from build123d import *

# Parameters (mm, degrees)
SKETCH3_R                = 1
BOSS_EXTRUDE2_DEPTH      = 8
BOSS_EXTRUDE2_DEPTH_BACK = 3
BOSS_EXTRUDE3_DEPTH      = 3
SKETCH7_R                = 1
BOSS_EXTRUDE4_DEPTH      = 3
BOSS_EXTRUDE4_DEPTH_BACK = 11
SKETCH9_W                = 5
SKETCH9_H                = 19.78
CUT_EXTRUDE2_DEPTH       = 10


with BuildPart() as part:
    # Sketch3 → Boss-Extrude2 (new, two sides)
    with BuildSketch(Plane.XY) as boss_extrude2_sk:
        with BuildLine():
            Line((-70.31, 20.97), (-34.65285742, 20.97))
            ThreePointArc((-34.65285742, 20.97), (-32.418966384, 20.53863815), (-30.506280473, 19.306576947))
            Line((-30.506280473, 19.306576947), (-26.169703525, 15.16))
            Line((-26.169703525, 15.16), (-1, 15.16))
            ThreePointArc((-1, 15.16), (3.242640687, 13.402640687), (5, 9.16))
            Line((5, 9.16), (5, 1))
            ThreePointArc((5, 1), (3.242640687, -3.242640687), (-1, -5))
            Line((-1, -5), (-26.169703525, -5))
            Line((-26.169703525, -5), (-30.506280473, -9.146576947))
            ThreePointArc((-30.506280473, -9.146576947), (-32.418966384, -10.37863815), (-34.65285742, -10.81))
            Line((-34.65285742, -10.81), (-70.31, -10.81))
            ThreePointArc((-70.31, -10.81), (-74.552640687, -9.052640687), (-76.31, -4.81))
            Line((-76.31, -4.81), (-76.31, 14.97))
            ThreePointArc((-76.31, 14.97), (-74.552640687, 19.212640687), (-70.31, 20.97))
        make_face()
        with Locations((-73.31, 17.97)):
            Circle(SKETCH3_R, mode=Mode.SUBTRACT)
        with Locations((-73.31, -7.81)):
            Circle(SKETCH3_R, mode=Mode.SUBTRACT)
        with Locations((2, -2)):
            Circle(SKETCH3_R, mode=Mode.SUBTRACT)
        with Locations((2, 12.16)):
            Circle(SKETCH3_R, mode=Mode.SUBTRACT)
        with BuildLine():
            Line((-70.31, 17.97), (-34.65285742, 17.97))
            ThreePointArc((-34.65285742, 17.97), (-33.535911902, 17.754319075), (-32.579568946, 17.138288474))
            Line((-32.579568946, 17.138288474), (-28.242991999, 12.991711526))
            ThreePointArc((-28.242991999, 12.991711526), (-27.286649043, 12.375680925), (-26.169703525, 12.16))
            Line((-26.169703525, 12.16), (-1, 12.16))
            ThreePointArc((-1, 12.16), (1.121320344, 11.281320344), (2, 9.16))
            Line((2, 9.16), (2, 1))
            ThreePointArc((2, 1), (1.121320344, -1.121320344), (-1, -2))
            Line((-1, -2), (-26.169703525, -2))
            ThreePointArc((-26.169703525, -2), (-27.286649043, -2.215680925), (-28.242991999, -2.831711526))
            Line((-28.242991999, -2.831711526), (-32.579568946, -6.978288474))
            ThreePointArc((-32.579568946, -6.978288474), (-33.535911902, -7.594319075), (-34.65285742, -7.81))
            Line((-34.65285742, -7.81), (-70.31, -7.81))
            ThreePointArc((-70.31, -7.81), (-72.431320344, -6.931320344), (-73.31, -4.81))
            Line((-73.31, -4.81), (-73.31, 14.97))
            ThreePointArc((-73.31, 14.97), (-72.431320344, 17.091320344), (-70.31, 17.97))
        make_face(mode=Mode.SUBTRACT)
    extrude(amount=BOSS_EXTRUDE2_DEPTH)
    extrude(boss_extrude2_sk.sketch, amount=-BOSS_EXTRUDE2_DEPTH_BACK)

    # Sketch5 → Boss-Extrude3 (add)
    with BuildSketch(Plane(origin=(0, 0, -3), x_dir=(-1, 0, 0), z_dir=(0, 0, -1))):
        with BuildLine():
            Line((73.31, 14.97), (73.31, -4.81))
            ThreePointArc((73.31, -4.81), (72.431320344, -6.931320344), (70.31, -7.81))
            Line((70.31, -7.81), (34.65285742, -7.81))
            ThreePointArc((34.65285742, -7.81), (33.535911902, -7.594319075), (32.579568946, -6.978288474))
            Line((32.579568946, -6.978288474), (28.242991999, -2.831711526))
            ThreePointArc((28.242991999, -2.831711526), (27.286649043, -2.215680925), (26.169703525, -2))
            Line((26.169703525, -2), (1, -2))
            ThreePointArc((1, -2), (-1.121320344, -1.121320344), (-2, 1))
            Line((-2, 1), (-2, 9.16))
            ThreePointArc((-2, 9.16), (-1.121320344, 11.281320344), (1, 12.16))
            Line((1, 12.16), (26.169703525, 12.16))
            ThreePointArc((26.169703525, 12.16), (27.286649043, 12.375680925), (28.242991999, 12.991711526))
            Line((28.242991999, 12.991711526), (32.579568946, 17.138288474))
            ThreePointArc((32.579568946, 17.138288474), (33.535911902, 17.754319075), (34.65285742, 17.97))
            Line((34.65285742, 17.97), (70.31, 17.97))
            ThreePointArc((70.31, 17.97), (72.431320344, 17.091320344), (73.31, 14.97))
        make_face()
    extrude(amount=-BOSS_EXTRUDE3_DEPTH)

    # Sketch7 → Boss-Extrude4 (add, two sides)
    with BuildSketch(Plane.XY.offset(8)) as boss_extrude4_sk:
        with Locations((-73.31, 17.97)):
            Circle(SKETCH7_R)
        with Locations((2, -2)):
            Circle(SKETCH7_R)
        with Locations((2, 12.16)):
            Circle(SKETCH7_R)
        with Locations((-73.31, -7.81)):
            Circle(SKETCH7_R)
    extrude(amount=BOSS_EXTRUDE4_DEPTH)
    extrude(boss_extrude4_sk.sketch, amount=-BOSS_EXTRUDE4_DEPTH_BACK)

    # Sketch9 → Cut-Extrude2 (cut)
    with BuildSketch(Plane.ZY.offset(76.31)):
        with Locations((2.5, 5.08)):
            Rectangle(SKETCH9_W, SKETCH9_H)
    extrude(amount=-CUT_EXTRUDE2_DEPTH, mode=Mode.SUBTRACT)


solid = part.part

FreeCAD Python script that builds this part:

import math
import FreeCAD as App
import Part
import Sketcher
from FreeCAD import Vector


def add_polygon(sketch, points):
    """Adds a closed chain of lines whose ends are joined by coincident constraints."""
    first, n = sketch.GeometryCount, len(points)
    for a, b in zip(points, points[1:] + points[:1]):
        sketch.addGeometry(Part.LineSegment(App.Vector(*a, 0), App.Vector(*b, 0)), False)
    for i in range(n):
        sketch.addConstraint(Sketcher.Constraint("Coincident", first + i, 2, first + (i + 1) % n, 1))

doc = App.newDocument("Part")
params = doc.addObject("Spreadsheet::Sheet", "Params")
for row, (alias, value) in enumerate([
    ("sketch1_diameter", "2 mm"),
    ("sketch1_radius", "6 mm"),
    ("sketch1_length", "6 mm"),
    ("sketch1_height", "19.78 mm"),
    ("sketch1_height2", "8.16 mm"),
    ("pad1_length", "8 mm"),
    ("pad1_length2", "3 mm"),
    ("sketch2_radius", "3 mm"),
    ("sketch2_length", "6 mm"),
    ("sketch2_height", "19.78 mm"),
    ("sketch2_height2", "8.16 mm"),
    ("pad2_length", "3 mm"),
    ("sketch3_diameter", "2 mm"),
    ("pad3_length", "3 mm"),
    ("pad3_length2", "11 mm"),
    ("sketch4_height", "5 mm"),
    ("sketch4_width", "19.78 mm"),
    ("pocket1_length", "10 mm"),
], start=1):
    params.set(f"A{row}", alias)
    params.set(f"B{row}", "=" + value)
    params.setAlias(f"B{row}", alias)

body = doc.addObject("PartDesign::Body", "Body")

# Sketch on XY plane
sketch1 = body.newObject("Sketcher::SketchObject", "Sketch")
sketch1.AttachmentSupport = (doc.getObject("XY_Plane"), [""])
sketch1.MapMode = "FlatFace"
sketch1.addGeometry(Part.LineSegment(Vector(-34.7, 21, 0), Vector(-70.3, 21, 0)), False)
sketch1.addGeometry(Part.ArcOfCircle(Part.Circle(Vector(-70.3, 15, 0), Vector(0, 0, 1), 6), math.radians(90), math.radians(180)), False)
sketch1.addGeometry(Part.LineSegment(Vector(-76.3, 15, 0), Vector(-76.3, -4.8, 0)), False)
sketch1.addGeometry(Part.ArcOfCircle(Part.Circle(Vector(-70.3, -4.8, 0), Vector(0, 0, 1), 6), math.radians(180), math.radians(270)), False)
sketch1.addGeometry(Part.LineSegment(Vector(-70.3, -10.8, 0), Vector(-34.7, -10.8, 0)), False)
sketch1.addGeometry(Part.ArcOfCircle(Part.Circle(Vector(-34.7, -4.8, 0), Vector(0, 0, 1), 6), math.radians(-90), math.radians(-46)), False)
sketch1.addGeometry(Part.LineSegment(Vector(-30.5, -9.1, 0), Vector(-26.2, -5, 0)), False)
sketch1.addGeometry(Part.LineSegment(Vector(-26.2, -5, 0), Vector(-1, -5, 0)), False)
sketch1.addGeometry(Part.ArcOfCircle(Part.Circle(Vector(-1, 1, 0), Vector(0, 0, 1), 6), math.radians(-90), math.radians(0)), False)
sketch1.addGeometry(Part.LineSegment(Vector(5, 1, 0), Vector(5, 9.2, 0)), False)
sketch1.addGeometry(Part.ArcOfCircle(Part.Circle(Vector(-1, 9.2, 0), Vector(0, 0, 1), 6), math.radians(0), math.radians(90)), False)
sketch1.addGeometry(Part.LineSegment(Vector(-1, 15.2, 0), Vector(-26.2, 15.2, 0)), False)
sketch1.addGeometry(Part.LineSegment(Vector(-26.2, 15.2, 0), Vector(-30.5, 19.3, 0)), False)
sketch1.addGeometry(Part.ArcOfCircle(Part.Circle(Vector(-34.7, 15, 0), Vector(0, 0, 1), 6), math.radians(46), math.radians(90)), False)
sketch1.addGeometry(Part.Circle(Vector(2, -2, 0), Vector(0, 0, 1), 1), False)
sketch1.addGeometry(Part.Circle(Vector(-73.3, -7.8, 0), Vector(0, 0, 1), 1), False)
sketch1.addGeometry(Part.Circle(Vector(2, 12.2, 0), Vector(0, 0, 1), 1), False)
sketch1.addGeometry(Part.LineSegment(Vector(-70.3, 18, 0), Vector(-34.7, 18, 0)), False)
sketch1.addGeometry(Part.ArcOfCircle(Part.Circle(Vector(-34.7, 15, 0), Vector(0, 0, 1), 3), math.radians(46), math.radians(90)), False)
sketch1.addGeometry(Part.LineSegment(Vector(-32.6, 17.1, 0), Vector(-28.2, 13, 0)), False)
sketch1.addGeometry(Part.ArcOfCircle(Part.Circle(Vector(-26.2, 15.2, 0), Vector(0, 0, 1), 3), math.radians(-134), math.radians(-90)), False)
sketch1.addGeometry(Part.LineSegment(Vector(-26.2, 12.2, 0), Vector(-1, 12.2, 0)), False)
sketch1.addGeometry(Part.ArcOfCircle(Part.Circle(Vector(-1, 9.2, 0), Vector(0, 0, 1), 3), math.radians(0), math.radians(90)), False)
sketch1.addGeometry(Part.LineSegment(Vector(2, 9.2, 0), Vector(2, 1, 0)), False)
sketch1.addGeometry(Part.ArcOfCircle(Part.Circle(Vector(-1, 1, 0), Vector(0, 0, 1), 3), math.radians(-90), math.radians(0)), False)
sketch1.addGeometry(Part.LineSegment(Vector(-1, -2, 0), Vector(-26.2, -2, 0)), False)
sketch1.addGeometry(Part.ArcOfCircle(Part.Circle(Vector(-26.2, -5, 0), Vector(0, 0, 1), 3), math.radians(90), math.radians(134)), False)
sketch1.addGeometry(Part.LineSegment(Vector(-28.2, -2.8, 0), Vector(-32.6, -7, 0)), False)
sketch1.addGeometry(Part.ArcOfCircle(Part.Circle(Vector(-34.7, -4.8, 0), Vector(0, 0, 1), 3), math.radians(-90), math.radians(-46)), False)
sketch1.addGeometry(Part.LineSegment(Vector(-34.7, -7.8, 0), Vector(-70.3, -7.8, 0)), False)
sketch1.addGeometry(Part.ArcOfCircle(Part.Circle(Vector(-70.3, -4.8, 0), Vector(0, 0, 1), 3), math.radians(180), math.radians(270)), False)
sketch1.addGeometry(Part.LineSegment(Vector(-73.3, -4.8, 0), Vector(-73.3, 15, 0)), False)
sketch1.addGeometry(Part.ArcOfCircle(Part.Circle(Vector(-70.3, 15, 0), Vector(0, 0, 1), 3), math.radians(90), math.radians(180)), False)
sketch1.addGeometry(Part.Circle(Vector(-73.3, 18, 0), Vector(0, 0, 1), 1), False)
sketch1.addConstraint(Sketcher.Constraint("Tangent", 0, 2, 1, 1))
sketch1.addConstraint(Sketcher.Constraint("Tangent", 1, 2, 2, 1))
sketch1.addConstraint(Sketcher.Constraint("Tangent", 2, 2, 3, 1))
sketch1.addConstraint(Sketcher.Constraint("Tangent", 3, 2, 4, 1))
sketch1.addConstraint(Sketcher.Constraint("Tangent", 4, 2, 5, 1))
sketch1.addConstraint(Sketcher.Constraint("Tangent", 5, 2, 6, 1))
sketch1.addConstraint(Sketcher.Constraint("Coincident", 6, 2, 7, 1))
sketch1.addConstraint(Sketcher.Constraint("Tangent", 7, 2, 8, 1))
sketch1.addConstraint(Sketcher.Constraint("Tangent", 8, 2, 9, 1))
sketch1.addConstraint(Sketcher.Constraint("Tangent", 9, 2, 10, 1))
sketch1.addConstraint(Sketcher.Constraint("Tangent", 10, 2, 11, 1))
sketch1.addConstraint(Sketcher.Constraint("Coincident", 11, 2, 12, 1))
sketch1.addConstraint(Sketcher.Constraint("Tangent", 12, 2, 13, 1))
sketch1.addConstraint(Sketcher.Constraint("Tangent", 13, 2, 0, 1))
sketch1.addConstraint(Sketcher.Constraint("Tangent", 17, 2, 18, 2))
sketch1.addConstraint(Sketcher.Constraint("Tangent", 18, 1, 19, 1))
sketch1.addConstraint(Sketcher.Constraint("Tangent", 19, 2, 20, 1))
sketch1.addConstraint(Sketcher.Constraint("Tangent", 20, 2, 21, 1))
sketch1.addConstraint(Sketcher.Constraint("Tangent", 21, 2, 22, 2))
sketch1.addConstraint(Sketcher.Constraint("Tangent", 22, 1, 23, 1))
sketch1.addConstraint(Sketcher.Constraint("Tangent", 23, 2, 24, 2))
sketch1.addConstraint(Sketcher.Constraint("Tangent", 24, 1, 25, 1))
sketch1.addConstraint(Sketcher.Constraint("Tangent", 25, 2, 26, 1))
sketch1.addConstraint(Sketcher.Constraint("Tangent", 26, 2, 27, 1))
sketch1.addConstraint(Sketcher.Constraint("Tangent", 27, 2, 28, 2))
sketch1.addConstraint(Sketcher.Constraint("Tangent", 28, 1, 29, 1))
sketch1.addConstraint(Sketcher.Constraint("Tangent", 29, 2, 30, 2))
sketch1.addConstraint(Sketcher.Constraint("Tangent", 30, 1, 31, 1))
sketch1.addConstraint(Sketcher.Constraint("Tangent", 31, 2, 32, 2))
sketch1.addConstraint(Sketcher.Constraint("Tangent", 32, 1, 17, 1))
sketch1.addConstraint(Sketcher.Constraint("Horizontal", 0))
sketch1.addConstraint(Sketcher.Constraint("Vertical", 2))
sketch1.addConstraint(Sketcher.Constraint("Horizontal", 4))
sketch1.addConstraint(Sketcher.Constraint("Horizontal", 7))
sketch1.addConstraint(Sketcher.Constraint("Vertical", 9))
sketch1.addConstraint(Sketcher.Constraint("Horizontal", 11))
sketch1.addConstraint(Sketcher.Constraint("Horizontal", 17))
sketch1.addConstraint(Sketcher.Constraint("Horizontal", 21))
sketch1.addConstraint(Sketcher.Constraint("Vertical", 23))
sketch1.addConstraint(Sketcher.Constraint("Horizontal", 25))
sketch1.addConstraint(Sketcher.Constraint("Horizontal", 29))
sketch1.addConstraint(Sketcher.Constraint("Vertical", 31))
sketch1.addConstraint(Sketcher.Constraint("Coincident", 18, 3, 13, 3))
sketch1.addConstraint(Sketcher.Constraint("Coincident", 22, 3, 10, 3))
sketch1.addConstraint(Sketcher.Constraint("Coincident", 24, 3, 8, 3))
sketch1.addConstraint(Sketcher.Constraint("Coincident", 28, 3, 5, 3))
sketch1.addConstraint(Sketcher.Constraint("Coincident", 30, 3, 3, 3))
sketch1.addConstraint(Sketcher.Constraint("Coincident", 32, 3, 1, 3))
sketch1.addConstraint(Sketcher.Constraint("Coincident", 6, 2, 26, 3))
sketch1.addConstraint(Sketcher.Constraint("Coincident", 11, 2, 20, 3))
sketch1.addConstraint(Sketcher.Constraint("Equal", 1, 3))
sketch1.addConstraint(Sketcher.Constraint("Equal", 3, 5))
sketch1.addConstraint(Sketcher.Constraint("Equal", 5, 8))
sketch1.addConstraint(Sketcher.Constraint("Equal", 8, 10))
sketch1.addConstraint(Sketcher.Constraint("Equal", 10, 13))
sketch1.addConstraint(Sketcher.Constraint("Equal", 14, 15))
sketch1.addConstraint(Sketcher.Constraint("Equal", 15, 16))
sketch1.addConstraint(Sketcher.Constraint("Equal", 18, 20))
sketch1.addConstraint(Sketcher.Constraint("Equal", 20, 22))
sketch1.addConstraint(Sketcher.Constraint("Equal", 16, 33))
sketch1.addConstraint(Sketcher.Constraint("Horizontal", 33, 3, 17, 2))
sketch1.addConstraint(Sketcher.Constraint("Horizontal", 16, 3, 20, 2))
sketch1.addConstraint(Sketcher.Constraint("Horizontal", 14, 3, 24, 1))
sketch1.addConstraint(Sketcher.Constraint("Horizontal", 15, 3, 28, 1))
sketch1.addConstraint(Sketcher.Constraint("Vertical", 5, 3, 13, 3))
sketch1.addConstraint(Sketcher.Constraint("Vertical", 14, 3, 16, 3))
sketch1.addConstraint(Sketcher.Constraint("Vertical", 20, 3, 26, 3))
sketch1.addConstraint(Sketcher.Constraint("Vertical", 15, 3, 33, 3))
sketch1.addConstraint(Sketcher.Constraint("Vertical", 5, 2, 12, 2))
sketch1.addConstraint(Sketcher.Constraint("Vertical", 16, 3, 22, 1))
sketch1.addConstraint(Sketcher.Constraint("Vertical", 33, 3, 30, 1))
sketch1.addConstraint(Sketcher.Constraint("Diameter", 14, 2.0))
sketch1.addConstraint(Sketcher.Constraint("Radius", 1, 6.0))
sketch1.addConstraint(Sketcher.Constraint("Distance", 6, 6.0))
sketch1.addConstraint(Sketcher.Constraint("DistanceX", 8, 3, -1, 1, 1.0))
sketch1.addConstraint(Sketcher.Constraint("DistanceY", -1, 1, 8, 3, 1.0))
sketch1.addConstraint(Sketcher.Constraint("DistanceY", 2, 2, 2, 1, 19.78))
sketch1.addConstraint(Sketcher.Constraint("DistanceY", 9, 1, 9, 2, 8.16))
sketch1.addConstraint(Sketcher.Constraint("DistanceX", 1, 3, -1, 1, 70.31))
sketch1.addConstraint(Sketcher.Constraint("DistanceX", 0, 2, 0, 1, 35.657143))
sketch1.setExpression("Constraints[71]", "Params.sketch1_diameter")
sketch1.setExpression("Constraints[72]", "Params.sketch1_radius")
sketch1.setExpression("Constraints[73]", "Params.sketch1_length")
sketch1.setExpression("Constraints[76]", "Params.sketch1_height")
sketch1.setExpression("Constraints[77]", "Params.sketch1_height2")
pad1 = body.newObject("PartDesign::Pad", "Pad")
pad1.Profile = sketch1
pad1.Type = "TwoLengths"
pad1.setExpression("Length", "Params.pad1_length")
pad1.setExpression("Length2", "Params.pad1_length2")

# Sketch on XY plane
sketch2 = body.newObject("Sketcher::SketchObject", "Sketch001")
sketch2.AttachmentSupport = (doc.getObject("XY_Plane"), [""])
sketch2.MapMode = "FlatFace"
sketch2.AttachmentOffset = App.Placement(Vector(0, 0, -3), App.Rotation())
sketch2.addGeometry(Part.LineSegment(Vector(-73.3, -4.8, 0), Vector(-73.3, 15, 0)), False)
sketch2.addGeometry(Part.ArcOfCircle(Part.Circle(Vector(-70.3, 15, 0), Vector(0, 0, 1), 3), math.radians(90), math.radians(180)), False)
sketch2.addGeometry(Part.LineSegment(Vector(-70.3, 18, 0), Vector(-34.7, 18, 0)), False)
sketch2.addGeometry(Part.ArcOfCircle(Part.Circle(Vector(-34.7, 15, 0), Vector(0, 0, 1), 3), math.radians(46), math.radians(90)), False)
sketch2.addGeometry(Part.LineSegment(Vector(-32.6, 17.1, 0), Vector(-28.2, 13, 0)), False)
sketch2.addGeometry(Part.ArcOfCircle(Part.Circle(Vector(-26.2, 15.2, 0), Vector(0, 0, 1), 3), math.radians(-134), math.radians(-90)), False)
sketch2.addGeometry(Part.LineSegment(Vector(-26.2, 12.2, 0), Vector(-1, 12.2, 0)), False)
sketch2.addGeometry(Part.ArcOfCircle(Part.Circle(Vector(-1, 9.2, 0), Vector(0, 0, 1), 3), math.radians(0), math.radians(90)), False)
sketch2.addGeometry(Part.LineSegment(Vector(2, 9.2, 0), Vector(2, 1, 0)), False)
sketch2.addGeometry(Part.ArcOfCircle(Part.Circle(Vector(-1, 1, 0), Vector(0, 0, 1), 3), math.radians(-90), math.radians(0)), False)
sketch2.addGeometry(Part.LineSegment(Vector(-1, -2, 0), Vector(-26.2, -2, 0)), False)
sketch2.addGeometry(Part.ArcOfCircle(Part.Circle(Vector(-26.2, -5, 0), Vector(0, 0, 1), 3), math.radians(90), math.radians(134)), False)
sketch2.addGeometry(Part.LineSegment(Vector(-28.2, -2.8, 0), Vector(-32.6, -7, 0)), False)
sketch2.addGeometry(Part.ArcOfCircle(Part.Circle(Vector(-34.7, -4.8, 0), Vector(0, 0, 1), 3), math.radians(-90), math.radians(-46)), False)
sketch2.addGeometry(Part.LineSegment(Vector(-34.7, -7.8, 0), Vector(-70.3, -7.8, 0)), False)
sketch2.addGeometry(Part.ArcOfCircle(Part.Circle(Vector(-70.3, -4.8, 0), Vector(0, 0, 1), 3), math.radians(180), math.radians(270)), False)
sketch2.addConstraint(Sketcher.Constraint("Tangent", 0, 2, 1, 2))
sketch2.addConstraint(Sketcher.Constraint("Tangent", 1, 1, 2, 1))
sketch2.addConstraint(Sketcher.Constraint("Tangent", 2, 2, 3, 2))
sketch2.addConstraint(Sketcher.Constraint("Tangent", 3, 1, 4, 1))
sketch2.addConstraint(Sketcher.Constraint("Tangent", 4, 2, 5, 1))
sketch2.addConstraint(Sketcher.Constraint("Tangent", 5, 2, 6, 1))
sketch2.addConstraint(Sketcher.Constraint("Tangent", 6, 2, 7, 2))
sketch2.addConstraint(Sketcher.Constraint("Tangent", 7, 1, 8, 1))
sketch2.addConstraint(Sketcher.Constraint("Tangent", 8, 2, 9, 2))
sketch2.addConstraint(Sketcher.Constraint("Tangent", 9, 1, 10, 1))
sketch2.addConstraint(Sketcher.Constraint("Tangent", 10, 2, 11, 1))
sketch2.addConstraint(Sketcher.Constraint("Tangent", 11, 2, 12, 1))
sketch2.addConstraint(Sketcher.Constraint("Tangent", 12, 2, 13, 2))
sketch2.addConstraint(Sketcher.Constraint("Tangent", 13, 1, 14, 1))
sketch2.addConstraint(Sketcher.Constraint("Tangent", 14, 2, 15, 2))
sketch2.addConstraint(Sketcher.Constraint("Tangent", 15, 1, 0, 1))
sketch2.addConstraint(Sketcher.Constraint("Vertical", 0))
sketch2.addConstraint(Sketcher.Constraint("Horizontal", 2))
sketch2.addConstraint(Sketcher.Constraint("Horizontal", 6))
sketch2.addConstraint(Sketcher.Constraint("Vertical", 8))
sketch2.addConstraint(Sketcher.Constraint("Horizontal", 10))
sketch2.addConstraint(Sketcher.Constraint("Horizontal", 14))
sketch2.addConstraint(Sketcher.Constraint("Equal", 1, 3))
sketch2.addConstraint(Sketcher.Constraint("Equal", 3, 5))
sketch2.addConstraint(Sketcher.Constraint("Equal", 5, 7))
sketch2.addConstraint(Sketcher.Constraint("Equal", 7, 9))
sketch2.addConstraint(Sketcher.Constraint("Equal", 9, 11))
sketch2.addConstraint(Sketcher.Constraint("Equal", 11, 13))
sketch2.addConstraint(Sketcher.Constraint("Equal", 13, 15))
sketch2.addConstraint(Sketcher.Constraint("Vertical", 5, 3, 11, 3))
sketch2.addConstraint(Sketcher.Constraint("Vertical", 3, 3, 13, 3))
sketch2.addConstraint(Sketcher.Constraint("Vertical", 4, 2, 11, 2))
sketch2.addConstraint(Sketcher.Constraint("Radius", 1, 3.0))
sketch2.addConstraint(Sketcher.Constraint("Distance", 4, 6.0))
sketch2.addConstraint(Sketcher.Constraint("DistanceX", 7, 3, -1, 1, 1.0))
sketch2.addConstraint(Sketcher.Constraint("DistanceY", -1, 1, 9, 3, 1.0))
sketch2.addConstraint(Sketcher.Constraint("DistanceY", 0, 1, 0, 2, 19.78))
sketch2.addConstraint(Sketcher.Constraint("DistanceY", 8, 2, 8, 1, 8.16))
sketch2.addConstraint(Sketcher.Constraint("DistanceX", 1, 3, -1, 1, 70.31))
sketch2.addConstraint(Sketcher.Constraint("DistanceX", 2, 1, 2, 2, 35.657143))
sketch2.setExpression("Constraints[32]", "Params.sketch2_radius")
sketch2.setExpression("Constraints[33]", "Params.sketch2_length")
sketch2.setExpression("Constraints[36]", "Params.sketch2_height")
sketch2.setExpression("Constraints[37]", "Params.sketch2_height2")
pad2 = body.newObject("PartDesign::Pad", "Pad001")
pad2.Profile = sketch2
pad2.setExpression("Length", "Params.pad2_length")

# Sketch on XY plane
sketch3 = body.newObject("Sketcher::SketchObject", "Sketch002")
sketch3.AttachmentSupport = (doc.getObject("XY_Plane"), [""])
sketch3.MapMode = "FlatFace"
sketch3.AttachmentOffset = App.Placement(Vector(0, 0, 8), App.Rotation())
sketch3.addGeometry(Part.Circle(Vector(-73.3, 18, 0), Vector(0, 0, 1), 1), False)
sketch3.addGeometry(Part.Circle(Vector(2, -2, 0), Vector(0, 0, 1), 1), False)
sketch3.addGeometry(Part.Circle(Vector(2, 12.2, 0), Vector(0, 0, 1), 1), False)
sketch3.addGeometry(Part.Circle(Vector(-73.3, -7.8, 0), Vector(0, 0, 1), 1), False)
sketch3.addConstraint(Sketcher.Constraint("Equal", 0, 1))
sketch3.addConstraint(Sketcher.Constraint("Equal", 1, 2))
sketch3.addConstraint(Sketcher.Constraint("Equal", 2, 3))
sketch3.addConstraint(Sketcher.Constraint("Vertical", 1, 3, 2, 3))
sketch3.addConstraint(Sketcher.Constraint("Vertical", 0, 3, 3, 3))
sketch3.addConstraint(Sketcher.Constraint("Diameter", 0, 2.0))
sketch3.addConstraint(Sketcher.Constraint("DistanceX", -1, 1, 1, 3, 2.0))
sketch3.addConstraint(Sketcher.Constraint("DistanceY", 1, 3, -1, 1, 2.0))
sketch3.addConstraint(Sketcher.Constraint("DistanceX", 0, 3, -1, 1, 73.31))
sketch3.addConstraint(Sketcher.Constraint("DistanceY", -1, 1, 0, 3, 17.97))
sketch3.addConstraint(Sketcher.Constraint("DistanceY", -1, 1, 2, 3, 12.16))
sketch3.addConstraint(Sketcher.Constraint("DistanceY", 3, 3, -1, 1, 7.81))
sketch3.setExpression("Constraints[5]", "Params.sketch3_diameter")
pad3 = body.newObject("PartDesign::Pad", "Pad002")
pad3.Profile = sketch3
pad3.Type = "TwoLengths"
pad3.setExpression("Length", "Params.pad3_length")
pad3.setExpression("Length2", "Params.pad3_length2")

# Sketch on YZ plane
sketch4 = body.newObject("Sketcher::SketchObject", "Sketch003")
sketch4.AttachmentSupport = (doc.getObject("YZ_Plane"), [""])
sketch4.MapMode = "FlatFace"
sketch4.AttachmentOffset = App.Placement(Vector(0, 0, -76.31), App.Rotation())
add_polygon(sketch4, [(15, 0), (-5, 0), (-5, 5), (15, 5)])  # lines 0-3
sketch4.addConstraint(Sketcher.Constraint("Horizontal", 0))
sketch4.addConstraint(Sketcher.Constraint("Vertical", 1))
sketch4.addConstraint(Sketcher.Constraint("Horizontal", 2))
sketch4.addConstraint(Sketcher.Constraint("Vertical", 3))
sketch4.addConstraint(Sketcher.Constraint("PointOnObject", 0, 2, -1))
sketch4.addConstraint(Sketcher.Constraint("DistanceY", 1, 1, 1, 2, 5.0))
sketch4.addConstraint(Sketcher.Constraint("DistanceX", 0, 2, 0, 1, 19.78))
sketch4.addConstraint(Sketcher.Constraint("DistanceX", 0, 2, -1, 1, 4.81))
sketch4.setExpression("Constraints[9]", "Params.sketch4_height")
sketch4.setExpression("Constraints[10]", "Params.sketch4_width")
pocket1 = body.newObject("PartDesign::Pocket", "Pocket")
pocket1.Profile = sketch4
pocket1.setExpression("Length", "Params.pocket1_length")
pocket1.Reversed = True

doc.recompute()
